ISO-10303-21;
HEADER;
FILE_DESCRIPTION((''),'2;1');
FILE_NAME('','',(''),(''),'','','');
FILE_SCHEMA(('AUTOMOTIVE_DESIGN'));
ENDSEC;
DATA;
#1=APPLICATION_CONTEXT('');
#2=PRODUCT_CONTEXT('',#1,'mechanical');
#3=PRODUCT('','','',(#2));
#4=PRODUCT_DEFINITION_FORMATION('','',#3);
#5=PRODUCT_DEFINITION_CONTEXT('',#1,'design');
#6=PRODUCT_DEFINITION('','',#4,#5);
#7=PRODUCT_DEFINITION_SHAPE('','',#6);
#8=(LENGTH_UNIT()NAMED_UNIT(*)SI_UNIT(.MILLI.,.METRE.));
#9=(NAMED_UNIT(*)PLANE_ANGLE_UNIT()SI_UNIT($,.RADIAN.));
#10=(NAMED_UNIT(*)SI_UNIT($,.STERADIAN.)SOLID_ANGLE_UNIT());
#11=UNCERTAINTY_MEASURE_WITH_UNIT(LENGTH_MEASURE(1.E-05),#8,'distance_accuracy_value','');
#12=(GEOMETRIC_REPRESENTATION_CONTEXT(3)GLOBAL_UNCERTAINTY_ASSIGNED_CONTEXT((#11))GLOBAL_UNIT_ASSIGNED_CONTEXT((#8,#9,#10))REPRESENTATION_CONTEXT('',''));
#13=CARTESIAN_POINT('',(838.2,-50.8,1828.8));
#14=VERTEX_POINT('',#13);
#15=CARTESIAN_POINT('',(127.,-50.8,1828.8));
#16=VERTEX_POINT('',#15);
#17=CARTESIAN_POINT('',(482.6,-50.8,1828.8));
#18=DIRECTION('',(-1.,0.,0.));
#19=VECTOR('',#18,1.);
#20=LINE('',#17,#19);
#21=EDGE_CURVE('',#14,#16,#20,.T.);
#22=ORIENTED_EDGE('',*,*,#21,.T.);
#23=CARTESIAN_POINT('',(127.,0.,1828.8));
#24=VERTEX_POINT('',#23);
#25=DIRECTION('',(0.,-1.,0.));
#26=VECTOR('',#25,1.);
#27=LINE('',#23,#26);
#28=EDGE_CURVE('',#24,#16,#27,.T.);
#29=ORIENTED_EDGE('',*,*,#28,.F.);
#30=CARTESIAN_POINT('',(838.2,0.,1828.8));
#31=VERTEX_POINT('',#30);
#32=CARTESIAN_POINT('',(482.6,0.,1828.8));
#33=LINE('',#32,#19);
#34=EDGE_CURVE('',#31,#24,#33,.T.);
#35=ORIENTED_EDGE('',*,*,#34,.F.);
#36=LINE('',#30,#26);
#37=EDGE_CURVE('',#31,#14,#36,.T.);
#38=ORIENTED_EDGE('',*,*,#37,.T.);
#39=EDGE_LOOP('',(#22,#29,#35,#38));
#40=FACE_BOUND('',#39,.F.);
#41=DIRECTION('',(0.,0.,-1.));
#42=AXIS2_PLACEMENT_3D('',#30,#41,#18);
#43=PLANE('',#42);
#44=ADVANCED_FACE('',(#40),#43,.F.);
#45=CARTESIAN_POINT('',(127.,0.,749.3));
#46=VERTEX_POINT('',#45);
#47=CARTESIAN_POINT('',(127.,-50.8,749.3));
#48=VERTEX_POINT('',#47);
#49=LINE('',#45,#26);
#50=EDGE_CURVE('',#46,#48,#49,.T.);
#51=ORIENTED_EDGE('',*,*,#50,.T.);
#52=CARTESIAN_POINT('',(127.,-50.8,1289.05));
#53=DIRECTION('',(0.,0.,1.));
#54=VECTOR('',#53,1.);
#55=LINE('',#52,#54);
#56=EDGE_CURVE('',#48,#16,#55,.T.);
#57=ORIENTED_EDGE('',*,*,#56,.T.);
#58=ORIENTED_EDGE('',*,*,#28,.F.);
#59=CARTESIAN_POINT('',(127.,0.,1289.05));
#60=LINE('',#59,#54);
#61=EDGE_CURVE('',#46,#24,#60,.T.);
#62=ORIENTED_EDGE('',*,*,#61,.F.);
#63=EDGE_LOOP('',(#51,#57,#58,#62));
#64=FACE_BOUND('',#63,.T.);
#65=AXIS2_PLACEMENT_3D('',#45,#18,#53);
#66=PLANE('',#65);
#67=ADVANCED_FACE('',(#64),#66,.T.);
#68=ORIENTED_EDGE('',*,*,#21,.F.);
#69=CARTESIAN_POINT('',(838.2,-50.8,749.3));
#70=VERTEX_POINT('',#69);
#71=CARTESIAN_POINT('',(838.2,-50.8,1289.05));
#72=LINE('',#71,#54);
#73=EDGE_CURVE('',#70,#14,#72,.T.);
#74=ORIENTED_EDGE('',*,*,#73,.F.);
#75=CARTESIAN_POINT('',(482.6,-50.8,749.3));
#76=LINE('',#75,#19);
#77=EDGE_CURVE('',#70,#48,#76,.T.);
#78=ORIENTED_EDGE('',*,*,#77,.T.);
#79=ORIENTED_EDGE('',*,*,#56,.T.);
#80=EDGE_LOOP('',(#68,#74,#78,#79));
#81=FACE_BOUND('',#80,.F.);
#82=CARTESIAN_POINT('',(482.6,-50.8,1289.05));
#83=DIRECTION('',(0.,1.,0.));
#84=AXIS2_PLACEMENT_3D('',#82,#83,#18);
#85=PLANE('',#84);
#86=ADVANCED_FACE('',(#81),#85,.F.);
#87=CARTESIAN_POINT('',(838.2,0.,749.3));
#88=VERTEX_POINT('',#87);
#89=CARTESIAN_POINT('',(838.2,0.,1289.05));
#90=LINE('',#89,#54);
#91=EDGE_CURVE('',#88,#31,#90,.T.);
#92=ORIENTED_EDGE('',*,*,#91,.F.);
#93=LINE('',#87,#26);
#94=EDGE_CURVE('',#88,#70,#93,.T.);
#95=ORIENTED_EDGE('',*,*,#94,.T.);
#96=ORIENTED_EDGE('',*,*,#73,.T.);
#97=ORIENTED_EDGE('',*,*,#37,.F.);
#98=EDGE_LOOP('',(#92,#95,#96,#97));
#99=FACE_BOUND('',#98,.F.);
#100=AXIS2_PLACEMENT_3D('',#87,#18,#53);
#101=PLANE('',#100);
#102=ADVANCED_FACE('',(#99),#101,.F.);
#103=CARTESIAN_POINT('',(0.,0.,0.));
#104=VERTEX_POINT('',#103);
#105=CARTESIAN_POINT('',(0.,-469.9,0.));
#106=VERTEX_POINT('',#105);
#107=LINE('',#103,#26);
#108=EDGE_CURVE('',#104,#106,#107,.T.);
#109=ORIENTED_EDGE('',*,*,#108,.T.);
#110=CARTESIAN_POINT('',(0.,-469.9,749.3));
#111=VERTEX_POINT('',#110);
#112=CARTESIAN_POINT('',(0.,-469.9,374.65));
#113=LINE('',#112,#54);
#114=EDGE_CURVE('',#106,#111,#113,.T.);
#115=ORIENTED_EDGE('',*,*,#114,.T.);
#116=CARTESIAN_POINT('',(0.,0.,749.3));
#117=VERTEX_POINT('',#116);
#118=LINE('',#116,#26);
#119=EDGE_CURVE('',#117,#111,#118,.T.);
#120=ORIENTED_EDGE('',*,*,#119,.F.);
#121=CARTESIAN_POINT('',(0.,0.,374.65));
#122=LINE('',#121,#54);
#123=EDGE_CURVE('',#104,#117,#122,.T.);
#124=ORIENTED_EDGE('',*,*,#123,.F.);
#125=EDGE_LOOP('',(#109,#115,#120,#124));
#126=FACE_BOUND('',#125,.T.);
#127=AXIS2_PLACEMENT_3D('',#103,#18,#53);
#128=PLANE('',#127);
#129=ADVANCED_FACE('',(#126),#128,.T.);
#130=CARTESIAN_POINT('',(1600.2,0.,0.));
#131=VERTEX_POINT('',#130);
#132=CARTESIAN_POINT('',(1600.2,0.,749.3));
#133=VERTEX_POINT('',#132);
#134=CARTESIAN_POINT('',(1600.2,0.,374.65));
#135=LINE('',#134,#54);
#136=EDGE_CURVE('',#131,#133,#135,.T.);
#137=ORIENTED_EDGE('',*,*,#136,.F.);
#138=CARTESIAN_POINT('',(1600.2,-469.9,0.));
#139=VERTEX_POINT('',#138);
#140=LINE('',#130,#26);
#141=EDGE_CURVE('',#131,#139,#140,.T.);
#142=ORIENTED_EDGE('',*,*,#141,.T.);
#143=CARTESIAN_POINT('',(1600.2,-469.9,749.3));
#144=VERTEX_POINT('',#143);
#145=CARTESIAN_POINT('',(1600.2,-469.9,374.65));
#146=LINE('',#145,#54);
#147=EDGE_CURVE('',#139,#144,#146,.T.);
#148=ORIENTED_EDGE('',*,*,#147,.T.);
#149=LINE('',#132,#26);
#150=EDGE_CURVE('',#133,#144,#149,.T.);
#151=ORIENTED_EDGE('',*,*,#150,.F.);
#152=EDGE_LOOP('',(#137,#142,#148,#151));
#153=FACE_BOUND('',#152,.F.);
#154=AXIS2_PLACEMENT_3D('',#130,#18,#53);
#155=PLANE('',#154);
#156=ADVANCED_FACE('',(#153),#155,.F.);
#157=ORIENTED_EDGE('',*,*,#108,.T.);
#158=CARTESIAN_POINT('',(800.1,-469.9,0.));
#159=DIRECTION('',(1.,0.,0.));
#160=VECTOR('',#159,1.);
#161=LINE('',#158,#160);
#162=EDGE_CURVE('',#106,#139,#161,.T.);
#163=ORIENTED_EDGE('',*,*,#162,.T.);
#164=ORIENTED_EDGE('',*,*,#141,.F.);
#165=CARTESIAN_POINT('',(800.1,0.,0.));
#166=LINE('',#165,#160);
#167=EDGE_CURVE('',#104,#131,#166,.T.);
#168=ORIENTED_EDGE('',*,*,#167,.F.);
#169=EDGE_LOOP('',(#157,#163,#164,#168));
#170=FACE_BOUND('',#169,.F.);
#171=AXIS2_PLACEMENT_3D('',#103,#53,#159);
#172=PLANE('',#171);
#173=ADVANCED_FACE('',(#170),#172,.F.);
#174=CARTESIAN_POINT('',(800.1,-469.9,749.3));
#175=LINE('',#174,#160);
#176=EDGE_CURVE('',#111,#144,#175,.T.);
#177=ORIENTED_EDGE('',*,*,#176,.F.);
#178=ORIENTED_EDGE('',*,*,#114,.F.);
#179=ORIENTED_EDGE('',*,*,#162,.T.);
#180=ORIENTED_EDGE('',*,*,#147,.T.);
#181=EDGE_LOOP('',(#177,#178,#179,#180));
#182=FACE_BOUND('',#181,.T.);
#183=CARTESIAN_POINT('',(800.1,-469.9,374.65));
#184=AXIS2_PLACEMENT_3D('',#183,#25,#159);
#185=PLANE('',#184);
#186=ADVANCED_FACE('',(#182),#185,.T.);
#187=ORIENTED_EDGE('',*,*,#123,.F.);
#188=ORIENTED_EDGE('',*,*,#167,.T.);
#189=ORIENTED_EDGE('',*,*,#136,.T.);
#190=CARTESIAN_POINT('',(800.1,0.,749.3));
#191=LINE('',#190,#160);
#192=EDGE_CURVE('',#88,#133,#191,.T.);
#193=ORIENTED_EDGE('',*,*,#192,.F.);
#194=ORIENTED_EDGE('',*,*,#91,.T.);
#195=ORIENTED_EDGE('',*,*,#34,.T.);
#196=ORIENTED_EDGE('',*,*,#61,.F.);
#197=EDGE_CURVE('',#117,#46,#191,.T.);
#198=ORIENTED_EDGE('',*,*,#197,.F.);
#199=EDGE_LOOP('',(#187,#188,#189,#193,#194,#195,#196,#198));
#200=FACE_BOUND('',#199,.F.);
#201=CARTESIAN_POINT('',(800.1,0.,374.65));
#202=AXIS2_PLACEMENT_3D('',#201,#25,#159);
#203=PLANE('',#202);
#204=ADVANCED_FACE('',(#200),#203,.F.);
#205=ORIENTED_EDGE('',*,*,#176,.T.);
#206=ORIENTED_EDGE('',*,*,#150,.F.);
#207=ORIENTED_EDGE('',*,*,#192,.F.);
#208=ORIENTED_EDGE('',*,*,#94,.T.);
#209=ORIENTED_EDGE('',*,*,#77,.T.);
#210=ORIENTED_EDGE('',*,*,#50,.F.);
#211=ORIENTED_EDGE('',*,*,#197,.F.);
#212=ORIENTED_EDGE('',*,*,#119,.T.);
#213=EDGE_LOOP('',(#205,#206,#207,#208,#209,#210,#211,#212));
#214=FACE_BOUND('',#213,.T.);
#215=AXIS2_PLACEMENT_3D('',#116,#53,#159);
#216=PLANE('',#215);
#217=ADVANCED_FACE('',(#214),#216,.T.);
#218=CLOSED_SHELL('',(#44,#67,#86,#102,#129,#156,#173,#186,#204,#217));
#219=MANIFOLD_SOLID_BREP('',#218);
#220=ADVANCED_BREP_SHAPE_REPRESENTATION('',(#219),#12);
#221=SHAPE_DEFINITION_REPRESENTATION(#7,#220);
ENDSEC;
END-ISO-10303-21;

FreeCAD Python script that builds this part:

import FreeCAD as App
import Part
import Sketcher
from FreeCAD import Vector
Q = App.Units.Quantity


def add_polygon(sketch, points):
    """Adds a closed chain of lines whose ends are joined by coincident constraints."""
    first, n = sketch.GeometryCount, len(points)
    for a, b in zip(points, points[1:] + points[:1]):
        sketch.addGeometry(Part.LineSegment(App.Vector(*a, 0), App.Vector(*b, 0)), False)
    for i in range(n):
        sketch.addConstraint(Sketcher.Constraint("Coincident", first + i, 2, first + (i + 1) % n, 1))

doc = App.newDocument("Part")
body = doc.addObject("PartDesign::Body", "Body")

sketch1 = doc.addObject("Sketcher::SketchObject", "Sketch")
body.addObject(sketch1)
sketch1.AttachmentSupport = (doc.XZ_Plane, [""])
sketch1.MapMode = "FlatFace"
add_polygon(sketch1, [(0, 749), (0, 0), (1600, 0), (1600, 749)])
sketch1.addConstraint(Sketcher.Constraint("Vertical", 0))
sketch1.addConstraint(Sketcher.Constraint("Horizontal", 1))
sketch1.addConstraint(Sketcher.Constraint("Vertical", 2))
sketch1.addConstraint(Sketcher.Constraint("Horizontal", 3))
sketch1.addConstraint(Sketcher.Constraint("Coincident", 0, 2, -1, 1))
sketch1.addConstraint(Sketcher.Constraint("DistanceX", 1, 1, 1, 2, Q("63 in")))
sketch1.addConstraint(Sketcher.Constraint("DistanceY", 0, 2, 0, 1, Q("29.5 in")))
pad1 = doc.addObject("PartDesign::Pad", "Pad")
body.addObject(pad1)
pad1.Profile = sketch1
pad1.Length = Q("18.5 in")

sketch2 = doc.addObject("Sketcher::SketchObject", "Sketch001")
body.addObject(sketch2)
sketch2.AttachmentSupport = (doc.XZ_Plane, [""])
sketch2.MapMode = "FlatFace"
add_polygon(sketch2, [(838, 1829), (838, 749), (127, 749), (127, 1829)])
sketch2.addConstraint(Sketcher.Constraint("Vertical", 0))
sketch2.addConstraint(Sketcher.Constraint("Horizontal", 1))
sketch2.addConstraint(Sketcher.Constraint("Vertical", 2))
sketch2.addConstraint(Sketcher.Constraint("Horizontal", 3))
sketch2.addConstraint(Sketcher.Constraint("DistanceX", 1, 2, 1, 1, Q("28 in")))
sketch2.addConstraint(Sketcher.Constraint("DistanceY", 0, 2, 0, 1, Q("42.5 in")))
sketch2.addConstraint(Sketcher.Constraint("DistanceX", -1, 1, 0, 2, Q("33 in")))
sketch2.addConstraint(Sketcher.Constraint("DistanceY", -1, 1, 2, 2, Q("72 in")))
pad2 = doc.addObject("PartDesign::Pad", "Pad001")
body.addObject(pad2)
pad2.Profile = sketch2
pad2.Length = Q("2 in")

doc.recompute()
